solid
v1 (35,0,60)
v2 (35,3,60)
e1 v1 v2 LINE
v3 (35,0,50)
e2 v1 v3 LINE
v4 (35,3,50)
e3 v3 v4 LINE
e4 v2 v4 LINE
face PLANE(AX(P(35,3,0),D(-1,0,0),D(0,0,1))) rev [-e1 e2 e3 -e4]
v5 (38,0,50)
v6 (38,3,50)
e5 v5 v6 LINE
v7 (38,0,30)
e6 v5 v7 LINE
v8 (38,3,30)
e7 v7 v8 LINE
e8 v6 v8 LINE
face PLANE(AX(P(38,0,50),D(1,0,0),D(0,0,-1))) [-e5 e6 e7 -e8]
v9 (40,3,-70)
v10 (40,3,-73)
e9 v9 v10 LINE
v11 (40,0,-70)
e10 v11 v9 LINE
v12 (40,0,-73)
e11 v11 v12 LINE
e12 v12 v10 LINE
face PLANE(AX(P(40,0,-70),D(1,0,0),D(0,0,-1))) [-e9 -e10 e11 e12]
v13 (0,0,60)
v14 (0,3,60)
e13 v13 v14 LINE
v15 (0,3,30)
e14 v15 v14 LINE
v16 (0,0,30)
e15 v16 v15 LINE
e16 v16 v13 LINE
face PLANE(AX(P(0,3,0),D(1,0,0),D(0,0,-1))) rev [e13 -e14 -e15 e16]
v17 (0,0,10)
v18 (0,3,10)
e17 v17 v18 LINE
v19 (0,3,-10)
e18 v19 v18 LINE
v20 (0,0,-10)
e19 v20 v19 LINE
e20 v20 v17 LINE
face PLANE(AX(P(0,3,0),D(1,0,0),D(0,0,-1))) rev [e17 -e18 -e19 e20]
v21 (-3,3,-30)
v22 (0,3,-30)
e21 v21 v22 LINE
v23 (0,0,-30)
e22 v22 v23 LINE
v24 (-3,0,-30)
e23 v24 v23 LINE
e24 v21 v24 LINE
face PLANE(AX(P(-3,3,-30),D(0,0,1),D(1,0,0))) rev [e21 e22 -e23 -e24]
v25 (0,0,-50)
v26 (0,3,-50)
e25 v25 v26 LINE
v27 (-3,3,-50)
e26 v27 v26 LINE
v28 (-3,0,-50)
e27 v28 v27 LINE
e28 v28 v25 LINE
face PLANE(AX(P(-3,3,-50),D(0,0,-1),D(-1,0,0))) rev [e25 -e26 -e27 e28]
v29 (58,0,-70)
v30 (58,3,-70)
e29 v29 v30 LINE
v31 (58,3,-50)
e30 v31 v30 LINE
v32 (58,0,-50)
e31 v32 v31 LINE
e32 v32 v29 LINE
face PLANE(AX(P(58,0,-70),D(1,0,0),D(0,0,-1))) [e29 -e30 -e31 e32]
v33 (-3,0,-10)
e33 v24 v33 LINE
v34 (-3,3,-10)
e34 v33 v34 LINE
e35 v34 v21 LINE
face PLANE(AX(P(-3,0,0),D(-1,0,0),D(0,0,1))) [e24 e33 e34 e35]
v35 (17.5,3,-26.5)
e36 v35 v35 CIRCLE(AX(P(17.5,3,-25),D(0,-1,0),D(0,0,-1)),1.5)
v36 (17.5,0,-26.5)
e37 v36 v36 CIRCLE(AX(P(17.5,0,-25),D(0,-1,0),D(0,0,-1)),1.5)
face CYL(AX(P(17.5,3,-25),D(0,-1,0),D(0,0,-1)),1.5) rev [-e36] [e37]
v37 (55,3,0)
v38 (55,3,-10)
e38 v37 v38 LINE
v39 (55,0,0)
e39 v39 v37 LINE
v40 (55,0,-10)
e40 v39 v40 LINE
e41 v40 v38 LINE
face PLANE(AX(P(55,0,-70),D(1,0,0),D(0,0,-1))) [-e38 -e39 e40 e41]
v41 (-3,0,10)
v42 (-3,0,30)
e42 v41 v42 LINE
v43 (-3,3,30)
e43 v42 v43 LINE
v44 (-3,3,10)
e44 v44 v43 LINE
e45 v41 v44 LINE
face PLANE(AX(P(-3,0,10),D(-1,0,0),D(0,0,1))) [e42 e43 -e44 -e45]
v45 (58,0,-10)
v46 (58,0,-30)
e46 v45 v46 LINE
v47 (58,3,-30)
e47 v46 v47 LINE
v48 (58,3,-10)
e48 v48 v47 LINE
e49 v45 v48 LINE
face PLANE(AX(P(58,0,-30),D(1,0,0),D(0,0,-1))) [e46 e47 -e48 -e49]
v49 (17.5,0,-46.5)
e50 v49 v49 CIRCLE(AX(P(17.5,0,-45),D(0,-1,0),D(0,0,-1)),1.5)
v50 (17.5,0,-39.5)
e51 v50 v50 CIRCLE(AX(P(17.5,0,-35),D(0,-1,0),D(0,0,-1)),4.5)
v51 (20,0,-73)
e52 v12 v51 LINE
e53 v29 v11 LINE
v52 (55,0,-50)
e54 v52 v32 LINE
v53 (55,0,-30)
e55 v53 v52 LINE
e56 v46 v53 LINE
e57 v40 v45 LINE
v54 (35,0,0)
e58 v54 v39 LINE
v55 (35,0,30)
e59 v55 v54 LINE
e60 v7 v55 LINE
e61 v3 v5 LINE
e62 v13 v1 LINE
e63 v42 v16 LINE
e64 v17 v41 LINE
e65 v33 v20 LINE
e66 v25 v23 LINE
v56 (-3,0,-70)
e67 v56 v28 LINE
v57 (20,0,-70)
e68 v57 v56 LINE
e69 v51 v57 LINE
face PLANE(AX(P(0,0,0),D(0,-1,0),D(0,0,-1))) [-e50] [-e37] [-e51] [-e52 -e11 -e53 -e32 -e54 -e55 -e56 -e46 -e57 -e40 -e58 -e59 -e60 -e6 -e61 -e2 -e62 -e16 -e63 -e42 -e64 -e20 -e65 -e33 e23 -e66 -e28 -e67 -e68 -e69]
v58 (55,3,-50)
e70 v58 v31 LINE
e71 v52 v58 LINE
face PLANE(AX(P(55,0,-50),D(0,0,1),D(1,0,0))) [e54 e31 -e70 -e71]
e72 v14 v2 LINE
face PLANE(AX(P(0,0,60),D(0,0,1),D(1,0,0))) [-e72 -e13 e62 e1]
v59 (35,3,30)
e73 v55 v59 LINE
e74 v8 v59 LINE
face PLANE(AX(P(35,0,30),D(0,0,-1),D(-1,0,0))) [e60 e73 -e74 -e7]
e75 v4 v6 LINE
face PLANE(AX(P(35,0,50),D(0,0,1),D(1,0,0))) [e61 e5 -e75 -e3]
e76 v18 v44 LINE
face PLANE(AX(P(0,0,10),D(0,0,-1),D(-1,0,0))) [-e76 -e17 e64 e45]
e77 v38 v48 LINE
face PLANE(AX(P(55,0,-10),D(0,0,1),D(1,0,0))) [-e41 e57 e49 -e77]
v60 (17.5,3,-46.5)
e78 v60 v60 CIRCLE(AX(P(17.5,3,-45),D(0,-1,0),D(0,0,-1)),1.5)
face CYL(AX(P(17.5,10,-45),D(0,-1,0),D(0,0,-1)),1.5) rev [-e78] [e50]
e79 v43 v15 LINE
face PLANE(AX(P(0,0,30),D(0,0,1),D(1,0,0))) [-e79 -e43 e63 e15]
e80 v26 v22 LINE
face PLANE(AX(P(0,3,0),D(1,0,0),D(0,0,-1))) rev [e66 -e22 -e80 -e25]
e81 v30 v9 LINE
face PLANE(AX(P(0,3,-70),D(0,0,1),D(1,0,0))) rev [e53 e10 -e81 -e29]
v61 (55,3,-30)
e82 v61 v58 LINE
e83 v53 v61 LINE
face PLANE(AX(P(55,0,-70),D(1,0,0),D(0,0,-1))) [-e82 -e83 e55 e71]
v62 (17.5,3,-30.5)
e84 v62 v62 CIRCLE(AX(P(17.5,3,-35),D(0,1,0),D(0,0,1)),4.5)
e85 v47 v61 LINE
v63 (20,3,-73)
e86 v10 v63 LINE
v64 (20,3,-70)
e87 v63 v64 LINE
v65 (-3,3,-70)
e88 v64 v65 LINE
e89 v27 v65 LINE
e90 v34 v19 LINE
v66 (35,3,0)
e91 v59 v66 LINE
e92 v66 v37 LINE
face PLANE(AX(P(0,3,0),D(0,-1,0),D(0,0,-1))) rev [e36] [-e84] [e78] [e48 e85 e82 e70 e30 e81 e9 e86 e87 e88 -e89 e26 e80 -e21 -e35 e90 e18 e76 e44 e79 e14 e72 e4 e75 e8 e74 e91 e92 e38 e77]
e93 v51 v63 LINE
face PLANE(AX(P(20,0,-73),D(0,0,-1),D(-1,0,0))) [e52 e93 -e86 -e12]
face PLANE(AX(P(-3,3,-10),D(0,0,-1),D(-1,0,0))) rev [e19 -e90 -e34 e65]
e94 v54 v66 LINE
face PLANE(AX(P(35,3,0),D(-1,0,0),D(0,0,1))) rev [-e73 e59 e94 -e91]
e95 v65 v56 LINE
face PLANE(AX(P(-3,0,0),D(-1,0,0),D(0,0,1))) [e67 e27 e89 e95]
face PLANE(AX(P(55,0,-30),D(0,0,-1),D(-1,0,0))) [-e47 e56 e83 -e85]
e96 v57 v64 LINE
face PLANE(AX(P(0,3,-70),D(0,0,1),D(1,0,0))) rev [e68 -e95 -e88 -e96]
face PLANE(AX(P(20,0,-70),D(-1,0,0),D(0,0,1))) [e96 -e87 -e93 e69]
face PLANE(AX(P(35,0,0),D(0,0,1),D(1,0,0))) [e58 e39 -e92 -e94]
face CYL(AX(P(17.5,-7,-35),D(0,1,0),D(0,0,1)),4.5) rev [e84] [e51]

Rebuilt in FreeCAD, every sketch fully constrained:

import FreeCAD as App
import Part
import Sketcher
Q = App.Units.Quantity

doc = App.newDocument("Part")
params = doc.addObject("Spreadsheet::Sheet", "Params")
for row, (alias, value) in enumerate([
    ("sketch1_width", "35 mm"),
    ("sketch1_height", "70 mm"),
    ("pad1_length", "3 mm"),
    ("sketch2_width", "3 mm"),
    ("sketch2_height", "20 mm"),
    ("pad2_length", "3 mm"),
    ("sketch3_width", "3 mm"),
    ("sketch3_height", "20 mm"),
    ("pad3_length", "3 mm"),
    ("sketch4_diameter", "9 mm"),
    ("pocket1_length", "10 mm"),
    ("sketch5_diameter", "3 mm"),
    ("pocket2_length", "3 mm"),
    ("sketch6_diameter", "3 mm"),
    ("pocket3_length", "10 mm"),
    ("sketch7_width", "35 mm"),
    ("sketch7_height", "60 mm"),
    ("pad4_length", "3 mm"),
    ("sketch8_width", "20 mm"),
    ("sketch8_height", "70 mm"),
    ("pad5_length", "3 mm"),
    ("sketch9_width", "3 mm"),
    ("sketch9_height", "20 mm"),
    ("pad6_length", "3 mm"),
    ("sketch10_width", "20 mm"),
    ("sketch10_height", "3 mm"),
    ("pad7_length", "3 mm"),
    ("sketch11_width", "3 mm"),
    ("sketch11_height", "20 mm"),
    ("pad8_length", "3 mm"),
], start=1):
    params.set(f"A{row}", alias)
    params.set(f"B{row}", "=" + value)
    params.setAlias(f"B{row}", alias)

body = doc.addObject("PartDesign::Body", "Body")

sketch1 = doc.addObject("Sketcher::SketchObject", "Sketch")
body.addObject(sketch1)
sketch1.AttachmentSupport = (doc.XZ_Plane, [""])
sketch1.MapMode = "FlatFace"
sketch1.addGeometry(Part.LineSegment(App.Vector(0, -70, 0), App.Vector(0, 0, 0)), False)
sketch1.addGeometry(Part.LineSegment(App.Vector(0, 0, 0), App.Vector(35, 0, 0)), False)
sketch1.addGeometry(Part.LineSegment(App.Vector(35, 0, 0), App.Vector(35, -70, 0)), False)
sketch1.addGeometry(Part.LineSegment(App.Vector(35, -70, 0), App.Vector(0, -70, 0)), False)
sketch1.addConstraint(Sketcher.Constraint("Coincident", 0, 2, 1, 1))
sketch1.addConstraint(Sketcher.Constraint("Coincident", 1, 2, 2, 1))
sketch1.addConstraint(Sketcher.Constraint("Coincident", 2, 2, 3, 1))
sketch1.addConstraint(Sketcher.Constraint("Coincident", 3, 2, 0, 1))
sketch1.addConstraint(Sketcher.Constraint("Vertical", 0))
sketch1.addConstraint(Sketcher.Constraint("Horizontal", 1))
sketch1.addConstraint(Sketcher.Constraint("Vertical", 2))
sketch1.addConstraint(Sketcher.Constraint("Horizontal", 3))
sketch1.addConstraint(Sketcher.Constraint("Coincident", 0, 2, -1, 1))
sketch1.addConstraint(Sketcher.Constraint("DistanceX", 1, 1, 1, 2, Q("35 mm")))
sketch1.addConstraint(Sketcher.Constraint("DistanceY", 0, 1, 0, 2, Q("70 mm")))
sketch1.setExpression("Constraints[9]", "Params.sketch1_width")
sketch1.setExpression("Constraints[10]", "Params.sketch1_height")
pad1 = doc.addObject("PartDesign::Pad", "Pad")
body.addObject(pad1)
pad1.Profile = sketch1
pad1.setExpression("Length", "Params.pad1_length")
pad1.Reversed = True

sketch2 = doc.addObject("Sketcher::SketchObject", "Sketch001")
body.addObject(sketch2)
sketch2.AttachmentSupport = (doc.YZ_Plane, [""])
sketch2.MapMode = "FlatFace"
sketch2.addGeometry(Part.LineSegment(App.Vector(3, -70, 0), App.Vector(0, -70, 0)), False)
sketch2.addGeometry(Part.LineSegment(App.Vector(0, -70, 0), App.Vector(0, -50, 0)), False)
sketch2.addGeometry(Part.LineSegment(App.Vector(0, -50, 0), App.Vector(3, -50, 0)), False)
sketch2.addGeometry(Part.LineSegment(App.Vector(3, -50, 0), App.Vector(3, -70, 0)), False)
sketch2.addConstraint(Sketcher.Constraint("Coincident", 0, 2, 1, 1))
sketch2.addConstraint(Sketcher.Constraint("Coincident", 1, 2, 2, 1))
sketch2.addConstraint(Sketcher.Constraint("Coincident", 2, 2, 3, 1))
sketch2.addConstraint(Sketcher.Constraint("Coincident", 3, 2, 0, 1))
sketch2.addConstraint(Sketcher.Constraint("Horizontal", 0))
sketch2.addConstraint(Sketcher.Constraint("Vertical", 1))
sketch2.addConstraint(Sketcher.Constraint("Horizontal", 2))
sketch2.addConstraint(Sketcher.Constraint("Vertical", 3))
sketch2.addConstraint(Sketcher.Constraint("PointOnObject", 0, 2, -2))
sketch2.addConstraint(Sketcher.Constraint("DistanceX", 0, 2, 0, 1, Q("3 mm")))
sketch2.addConstraint(Sketcher.Constraint("DistanceY", 1, 1, 1, 2, Q("20 mm")))
sketch2.addConstraint(Sketcher.Constraint("DistanceY", 0, 2, -1, 1, Q("70 mm")))
sketch2.setExpression("Constraints[9]", "Params.sketch2_width")
sketch2.setExpression("Constraints[10]", "Params.sketch2_height")
pad2 = doc.addObject("PartDesign::Pad", "Pad001")
body.addObject(pad2)
pad2.Profile = sketch2
pad2.setExpression("Length", "Params.pad2_length")
pad2.Reversed = True

sketch3 = doc.addObject("Sketcher::SketchObject", "Sketch002")
body.addObject(sketch3)
sketch3.AttachmentSupport = (doc.YZ_Plane, [""])
sketch3.MapMode = "FlatFace"
sketch3.addGeometry(Part.LineSegment(App.Vector(3, -30, 0), App.Vector(0, -30, 0)), False)
sketch3.addGeometry(Part.LineSegment(App.Vector(0, -30, 0), App.Vector(0, -10, 0)), False)
sketch3.addGeometry(Part.LineSegment(App.Vector(0, -10, 0), App.Vector(3, -10, 0)), False)
sketch3.addGeometry(Part.LineSegment(App.Vector(3, -10, 0), App.Vector(3, -30, 0)), False)
sketch3.addConstraint(Sketcher.Constraint("Coincident", 0, 2, 1, 1))
sketch3.addConstraint(Sketcher.Constraint("Coincident", 1, 2, 2, 1))
sketch3.addConstraint(Sketcher.Constraint("Coincident", 2, 2, 3, 1))
sketch3.addConstraint(Sketcher.Constraint("Coincident", 3, 2, 0, 1))
sketch3.addConstraint(Sketcher.Constraint("Horizontal", 0))
sketch3.addConstraint(Sketcher.Constraint("Vertical", 1))
sketch3.addConstraint(Sketcher.Constraint("Horizontal", 2))
sketch3.addConstraint(Sketcher.Constraint("Vertical", 3))
sketch3.addConstraint(Sketcher.Constraint("PointOnObject", 0, 2, -2))
sketch3.addConstraint(Sketcher.Constraint("DistanceX", 0, 2, 0, 1, Q("3 mm")))
sketch3.addConstraint(Sketcher.Constraint("DistanceY", 1, 1, 1, 2, Q("20 mm")))
sketch3.addConstraint(Sketcher.Constraint("DistanceY", 0, 2, -1, 1, Q("30 mm")))
sketch3.setExpression("Constraints[9]", "Params.sketch3_width")
sketch3.setExpression("Constraints[10]", "Params.sketch3_height")
pad3 = doc.addObject("PartDesign::Pad", "Pad002")
body.addObject(pad3)
pad3.Profile = sketch3
pad3.setExpression("Length", "Params.pad3_length")
pad3.Reversed = True

sketch4 = doc.addObject("Sketcher::SketchObject", "Sketch003")
body.addObject(sketch4)
sketch4.AttachmentSupport = (doc.XZ_Plane, [""])
sketch4.MapMode = "FlatFace"
sketch4.AttachmentOffset = App.Placement(App.Vector(0, 0, -3), App.Rotation())
sketch4.addGeometry(Part.Circle(App.Vector(17.5, -35, 0), App.Vector(0, 0, 1), 4.5), False)
sketch4.addConstraint(Sketcher.Constraint("Diameter", 0, Q("9 mm")))
sketch4.addConstraint(Sketcher.Constraint("DistanceY", 0, 3, -1, 1, Q("35 mm")))
sketch4.addConstraint(Sketcher.Constraint("DistanceX", -1, 1, 0, 3, Q("17.5 mm")))
sketch4.setExpression("Constraints[0]", "Params.sketch4_diameter")
pocket1 = doc.addObject("PartDesign::Pocket", "Pocket")
body.addObject(pocket1)
pocket1.Profile = sketch4
pocket1.setExpression("Length", "Params.pocket1_length")
pocket1.Reversed = True

sketch5 = doc.addObject("Sketcher::SketchObject", "Sketch004")
body.addObject(sketch5)
sketch5.AttachmentSupport = (doc.XZ_Plane, [""])
sketch5.MapMode = "FlatFace"
sketch5.addGeometry(Part.Circle(App.Vector(17.5, -25, 0), App.Vector(0, 0, 1), 1.5), False)
sketch5.addConstraint(Sketcher.Constraint("Diameter", 0, Q("3 mm")))
sketch5.addConstraint(Sketcher.Constraint("DistanceY", 0, 3, -1, 1, Q("25 mm")))
sketch5.addConstraint(Sketcher.Constraint("DistanceX", -1, 1, 0, 3, Q("17.5 mm")))
sketch5.setExpression("Constraints[0]", "Params.sketch5_diameter")
pocket2 = doc.addObject("PartDesign::Pocket", "Pocket001")
body.addObject(pocket2)
pocket2.Profile = sketch5
pocket2.setExpression("Length", "Params.pocket2_length")

sketch6 = doc.addObject("Sketcher::SketchObject", "Sketch005")
body.addObject(sketch6)
sketch6.AttachmentSupport = (doc.XZ_Plane, [""])
sketch6.MapMode = "FlatFace"
sketch6.addGeometry(Part.Circle(App.Vector(17.5, -45, 0), App.Vector(0, 0, 1), 1.5), False)
sketch6.addConstraint(Sketcher.Constraint("Diameter", 0, Q("3 mm")))
sketch6.addConstraint(Sketcher.Constraint("DistanceY", 0, 3, -1, 1, Q("45 mm")))
sketch6.addConstraint(Sketcher.Constraint("DistanceX", -1, 1, 0, 3, Q("17.5 mm")))
sketch6.setExpression("Constraints[0]", "Params.sketch6_diameter")
pocket3 = doc.addObject("PartDesign::Pocket", "Pocket002")
body.addObject(pocket3)
pocket3.Profile = sketch6
pocket3.setExpression("Length", "Params.pocket3_length")

sketch7 = doc.addObject("Sketcher::SketchObject", "Sketch006")
body.addObject(sketch7)
sketch7.AttachmentSupport = (doc.XZ_Plane, [""])
sketch7.MapMode = "FlatFace"
sketch7.AttachmentOffset = App.Placement(App.Vector(0, 0, -3), App.Rotation())
sketch7.addGeometry(Part.LineSegment(App.Vector(0, 0, 0), App.Vector(0, 60, 0)), False)
sketch7.addGeometry(Part.LineSegment(App.Vector(0, 60, 0), App.Vector(35, 60, 0)), False)
sketch7.addGeometry(Part.LineSegment(App.Vector(35, 60, 0), App.Vector(35, 0, 0)), False)
sketch7.addGeometry(Part.LineSegment(App.Vector(35, 0, 0), App.Vector(0, 0, 0)), False)
sketch7.addConstraint(Sketcher.Constraint("Coincident", 0, 2, 1, 1))
sketch7.addConstraint(Sketcher.Constraint("Coincident", 1, 2, 2, 1))
sketch7.addConstraint(Sketcher.Constraint("Coincident", 2, 2, 3, 1))
sketch7.addConstraint(Sketcher.Constraint("Coincident", 3, 2, 0, 1))
sketch7.addConstraint(Sketcher.Constraint("Vertical", 0))
sketch7.addConstraint(Sketcher.Constraint("Horizontal", 1))
sketch7.addConstraint(Sketcher.Constraint("Vertical", 2))
sketch7.addConstraint(Sketcher.Constraint("Horizontal", 3))
sketch7.addConstraint(Sketcher.Constraint("Coincident", 3, 2, -1, 1))
sketch7.addConstraint(Sketcher.Constraint("DistanceX", 1, 1, 1, 2, Q("35 mm")))
sketch7.addConstraint(Sketcher.Constraint("DistanceY", 0, 1, 0, 2, Q("60 mm")))
sketch7.setExpression("Constraints[9]", "Params.sketch7_width")
sketch7.setExpression("Constraints[10]", "Params.sketch7_height")
pad4 = doc.addObject("PartDesign::Pad", "Pad003")
body.addObject(pad4)
pad4.Profile = sketch7
pad4.setExpression("Length", "Params.pad4_length")

sketch8 = doc.addObject("Sketcher::SketchObject", "Sketch007")
body.addObject(sketch8)
sketch8.AttachmentSupport = (doc.XZ_Plane, [""])
sketch8.MapMode = "FlatFace"
sketch8.AttachmentOffset = App.Placement(App.Vector(0, 0, -3), App.Rotation())
sketch8.addGeometry(Part.LineSegment(App.Vector(35, -70, 0), App.Vector(35, 0, 0)), False)
sketch8.addGeometry(Part.LineSegment(App.Vector(35, 0, 0), App.Vector(55, 0, 0)), False)
sketch8.addGeometry(Part.LineSegment(App.Vector(55, 0, 0), App.Vector(55, -70, 0)), False)
sketch8.addGeometry(Part.LineSegment(App.Vector(55, -70, 0), App.Vector(35, -70, 0)), False)
sketch8.addConstraint(Sketcher.Constraint("Coincident", 0, 2, 1, 1))
sketch8.addConstraint(Sketcher.Constraint("Coincident", 1, 2, 2, 1))
sketch8.addConstraint(Sketcher.Constraint("Coincident", 2, 2, 3, 1))
sketch8.addConstraint(Sketcher.Constraint("Coincident", 3, 2, 0, 1))
sketch8.addConstraint(Sketcher.Constraint("Vertical", 0))
sketch8.addConstraint(Sketcher.Constraint("Horizontal", 1))
sketch8.addConstraint(Sketcher.Constraint("Vertical", 2))
sketch8.addConstraint(Sketcher.Constraint("Horizontal", 3))
sketch8.addConstraint(Sketcher.Constraint("PointOnObject", 0, 2, -1))
sketch8.addConstraint(Sketcher.Constraint("DistanceX", 1, 1, 1, 2, Q("20 mm")))
sketch8.addConstraint(Sketcher.Constraint("DistanceY", 0, 1, 0, 2, Q("70 mm")))
sketch8.addConstraint(Sketcher.Constraint("DistanceX", -1, 1, 0, 2, Q("35 mm")))
sketch8.setExpression("Constraints[9]", "Params.sketch8_width")
sketch8.setExpression("Constraints[10]", "Params.sketch8_height")
pad5 = doc.addObject("PartDesign::Pad", "Pad004")
body.addObject(pad5)
pad5.Profile = sketch8
pad5.setExpression("Length", "Params.pad5_length")

sketch9 = doc.addObject("Sketcher::SketchObject", "Sketch008")
body.addObject(sketch9)
sketch9.AttachmentSupport = (doc.XZ_Plane, [""])
sketch9.MapMode = "FlatFace"
sketch9.AttachmentOffset = App.Placement(App.Vector(0, 0, -3), App.Rotation())
sketch9.addGeometry(Part.LineSegment(App.Vector(55, -70, 0), App.Vector(55, -50, 0)), False)
sketch9.addGeometry(Part.LineSegment(App.Vector(55, -50, 0), App.Vector(58, -50, 0)), False)
sketch9.addGeometry(Part.LineSegment(App.Vector(58, -50, 0), App.Vector(58, -70, 0)), False)
sketch9.addGeometry(Part.LineSegment(App.Vector(58, -70, 0), App.Vector(55, -70, 0)), False)
sketch9.addGeometry(Part.LineSegment(App.Vector(55, -30, 0), App.Vector(55, -10, 0)), False)
sketch9.addGeometry(Part.LineSegment(App.Vector(55, -10, 0), App.Vector(58, -10, 0)), False)
sketch9.addGeometry(Part.LineSegment(App.Vector(58, -10, 0), App.Vector(58, -30, 0)), False)
sketch9.addGeometry(Part.LineSegment(App.Vector(58, -30, 0), App.Vector(55, -30, 0)), False)
sketch9.addConstraint(Sketcher.Constraint("Coincident", 0, 2, 1, 1))
sketch9.addConstraint(Sketcher.Constraint("Coincident", 1, 2, 2, 1))
sketch9.addConstraint(Sketcher.Constraint("Coincident", 2, 2, 3, 1))
sketch9.addConstraint(Sketcher.Constraint("Coincident", 3, 2, 0, 1))
sketch9.addConstraint(Sketcher.Constraint("Coincident", 4, 2, 5, 1))
sketch9.addConstraint(Sketcher.Constraint("Coincident", 5, 2, 6, 1))
sketch9.addConstraint(Sketcher.Constraint("Coincident", 6, 2, 7, 1))
sketch9.addConstraint(Sketcher.Constraint("Coincident", 7, 2, 4, 1))
sketch9.addConstraint(Sketcher.Constraint("Vertical", 0))
sketch9.addConstraint(Sketcher.Constraint("Horizontal", 1))
sketch9.addConstraint(Sketcher.Constraint("Vertical", 2))
sketch9.addConstraint(Sketcher.Constraint("Horizontal", 3))
sketch9.addConstraint(Sketcher.Constraint("Vertical", 4))
sketch9.addConstraint(Sketcher.Constraint("Horizontal", 5))
sketch9.addConstraint(Sketcher.Constraint("Vertical", 6))
sketch9.addConstraint(Sketcher.Constraint("Horizontal", 7))
sketch9.addConstraint(Sketcher.Constraint("Vertical", 3, 2, 4, 2))
sketch9.addConstraint(Sketcher.Constraint("Vertical", 2, 2, 5, 2))
sketch9.addConstraint(Sketcher.Constraint("Equal", 2, 4))
sketch9.addConstraint(Sketcher.Constraint("DistanceX", 1, 1, 1, 2, Q("3 mm")))
sketch9.addConstraint(Sketcher.Constraint("DistanceY", 0, 1, 0, 2, Q("20 mm")))
sketch9.addConstraint(Sketcher.Constraint("DistanceX", -1, 1, 0, 2, Q("55 mm")))
sketch9.addConstraint(Sketcher.Constraint("DistanceY", 0, 2, -1, 1, Q("50 mm")))
sketch9.addConstraint(Sketcher.Constraint("DistanceY", 4, 2, -1, 1, Q("10 mm")))
sketch9.setExpression("Constraints[19]", "Params.sketch9_width")
sketch9.setExpression("Constraints[20]", "Params.sketch9_height")
pad6 = doc.addObject("PartDesign::Pad", "Pad005")
body.addObject(pad6)
pad6.Profile = sketch9
pad6.setExpression("Length", "Params.pad6_length")

sketch10 = doc.addObject("Sketcher::SketchObject", "Sketch009")
body.addObject(sketch10)
sketch10.AttachmentSupport = (doc.XZ_Plane, [""])
sketch10.MapMode = "FlatFace"
sketch10.AttachmentOffset = App.Placement(App.Vector(0, 0, -3), App.Rotation())
sketch10.addGeometry(Part.LineSegment(App.Vector(20, -73, 0), App.Vector(20, -70, 0)), False)
sketch10.addGeometry(Part.LineSegment(App.Vector(20, -70, 0), App.Vector(40, -70, 0)), False)
sketch10.addGeometry(Part.LineSegment(App.Vector(40, -70, 0), App.Vector(40, -73, 0)), False)
sketch10.addGeometry(Part.LineSegment(App.Vector(40, -73, 0), App.Vector(20, -73, 0)), False)
sketch10.addConstraint(Sketcher.Constraint("Coincident", 0, 2, 1, 1))
sketch10.addConstraint(Sketcher.Constraint("Coincident", 1, 2, 2, 1))
sketch10.addConstraint(Sketcher.Constraint("Coincident", 2, 2, 3, 1))
sketch10.addConstraint(Sketcher.Constraint("Coincident", 3, 2, 0, 1))
sketch10.addConstraint(Sketcher.Constraint("Vertical", 0))
sketch10.addConstraint(Sketcher.Constraint("Horizontal", 1))
sketch10.addConstraint(Sketcher.Constraint("Vertical", 2))
sketch10.addConstraint(Sketcher.Constraint("Horizontal", 3))
sketch10.addConstraint(Sketcher.Constraint("DistanceX", 1, 1, 1, 2, Q("20 mm")))
sketch10.addConstraint(Sketcher.Constraint("DistanceY", 0, 1, 0, 2, Q("3 mm")))
sketch10.addConstraint(Sketcher.Constraint("DistanceX", -1, 1, 0, 2, Q("20 mm")))
sketch10.addConstraint(Sketcher.Constraint("DistanceY", 0, 2, -1, 1, Q("70 mm")))
sketch10.setExpression("Constraints[8]", "Params.sketch10_width")
sketch10.setExpression("Constraints[9]", "Params.sketch10_height")
pad7 = doc.addObject("PartDesign::Pad", "Pad006")
body.addObject(pad7)
pad7.Profile = sketch10
pad7.setExpression("Length", "Params.pad7_length")

sketch11 = doc.addObject("Sketcher::SketchObject", "Sketch010")
body.addObject(sketch11)
sketch11.AttachmentSupport = (doc.XZ_Plane, [""])
sketch11.MapMode = "FlatFace"
sketch11.AttachmentOffset = App.Placement(App.Vector(0, 0, -3), App.Rotation())
sketch11.addGeometry(Part.LineSegment(App.Vector(35, 30, 0), App.Vector(35, 50, 0)), False)
sketch11.addGeometry(Part.LineSegment(App.Vector(35, 50, 0), App.Vector(38, 50, 0)), False)
sketch11.addGeometry(Part.LineSegment(App.Vector(38, 50, 0), App.Vector(38, 30, 0)), False)
sketch11.addGeometry(Part.LineSegment(App.Vector(38, 30, 0), App.Vector(35, 30, 0)), False)
sketch11.addGeometry(Part.LineSegment(App.Vector(-3, 10, 0), App.Vector(-3, 30, 0)), False)
sketch11.addGeometry(Part.LineSegment(App.Vector(-3, 30, 0), App.Vector(0, 30, 0)), False)
sketch11.addGeometry(Part.LineSegment(App.Vector(0, 30, 0), App.Vector(0, 10, 0)), False)
sketch11.addGeometry(Part.LineSegment(App.Vector(0, 10, 0), App.Vector(-3, 10, 0)), False)
sketch11.addConstraint(Sketcher.Constraint("Coincident", 0, 2, 1, 1))
sketch11.addConstraint(Sketcher.Constraint("Coincident", 1, 2, 2, 1))
sketch11.addConstraint(Sketcher.Constraint("Coincident", 2, 2, 3, 1))
sketch11.addConstraint(Sketcher.Constraint("Coincident", 3, 2, 0, 1))
sketch11.addConstraint(Sketcher.Constraint("Coincident", 4, 2, 5, 1))
sketch11.addConstraint(Sketcher.Constraint("Coincident", 5, 2, 6, 1))
sketch11.addConstraint(Sketcher.Constraint("Coincident", 6, 2, 7, 1))
sketch11.addConstraint(Sketcher.Constraint("Coincident", 7, 2, 4, 1))
sketch11.addConstraint(Sketcher.Constraint("Vertical", 0))
sketch11.addConstraint(Sketcher.Constraint("Horizontal", 1))
sketch11.addConstraint(Sketcher.Constraint("Vertical", 2))
sketch11.addConstraint(Sketcher.Constraint("Horizontal", 3))
sketch11.addConstraint(Sketcher.Constraint("Vertical", 4))
sketch11.addConstraint(Sketcher.Constraint("Horizontal", 5))
sketch11.addConstraint(Sketcher.Constraint("Vertical", 6))
sketch11.addConstraint(Sketcher.Constraint("Horizontal", 7))
sketch11.addConstraint(Sketcher.Constraint("PointOnObject", 5, 2, -2))
sketch11.addConstraint(Sketcher.Constraint("Horizontal", 3, 2, 4, 2))
sketch11.addConstraint(Sketcher.Constraint("Equal", 3, 5))
sketch11.addConstraint(Sketcher.Constraint("Equal", 2, 4))
sketch11.addConstraint(Sketcher.Constraint("DistanceX", 1, 1, 1, 2, Q("3 mm")))
sketch11.addConstraint(Sketcher.Constraint("DistanceY", 0, 1, 0, 2, Q("20 mm")))
sketch11.addConstraint(Sketcher.Constraint("DistanceX", -1, 1, 0, 2, Q("35 mm")))
sketch11.addConstraint(Sketcher.Constraint("DistanceY", -1, 1, 0, 2, Q("50 mm")))
sketch11.setExpression("Constraints[20]", "Params.sketch11_width")
sketch11.setExpression("Constraints[21]", "Params.sketch11_height")
pad8 = doc.addObject("PartDesign::Pad", "Pad007")
body.addObject(pad8)
pad8.Profile = sketch11
pad8.setExpression("Length", "Params.pad8_length")

doc.recompute()
